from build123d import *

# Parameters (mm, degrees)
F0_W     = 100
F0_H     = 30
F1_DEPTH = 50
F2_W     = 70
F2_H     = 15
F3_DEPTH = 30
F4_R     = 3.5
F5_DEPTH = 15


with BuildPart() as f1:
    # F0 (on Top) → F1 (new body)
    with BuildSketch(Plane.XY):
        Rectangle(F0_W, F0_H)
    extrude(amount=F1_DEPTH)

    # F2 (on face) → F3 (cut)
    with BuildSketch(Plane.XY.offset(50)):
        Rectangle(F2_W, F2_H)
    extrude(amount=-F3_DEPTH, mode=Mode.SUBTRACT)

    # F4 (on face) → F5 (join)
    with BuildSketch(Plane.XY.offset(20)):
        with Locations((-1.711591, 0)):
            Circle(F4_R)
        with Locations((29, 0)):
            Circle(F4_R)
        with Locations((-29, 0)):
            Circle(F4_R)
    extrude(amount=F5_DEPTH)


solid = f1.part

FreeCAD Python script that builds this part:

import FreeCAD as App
import Part
import Sketcher

V = App.Vector
Q = App.Units.Quantity


def add_polygon(sketch, points):
    """Adds a closed chain of lines whose ends are joined by coincident constraints."""
    first, n = sketch.GeometryCount, len(points)
    for a, b in zip(points, points[1:] + points[:1]):
        sketch.addGeometry(Part.LineSegment(App.Vector(*a, 0), App.Vector(*b, 0)), False)
    for i in range(n):
        sketch.addConstraint(Sketcher.Constraint("Coincident", first + i, 2, first + (i + 1) % n, 1))

doc = App.newDocument("Part")
body = doc.addObject("PartDesign::Body", "Body")

sketch1 = body.newObject("Sketcher::SketchObject", "Sketch")
sketch1.AttachmentSupport = (doc.getObject("XY_Plane"), [""])
sketch1.MapMode = "FlatFace"
add_polygon(sketch1, [(-50, 15), (-50, -15), (50, -15), (50, 15)])
sketch1.addConstraint([
    Sketcher.Constraint("Vertical", 0),
    Sketcher.Constraint("Horizontal", 1),
    Sketcher.Constraint("Vertical", 2),
    Sketcher.Constraint("Horizontal", 3),
    Sketcher.Constraint("Symmetric", 0, 2, 2, 2, -1, 1),
    Sketcher.Constraint("DistanceX", 1, 1, 1, 2, Q("100 mm")),
    Sketcher.Constraint("DistanceY", 0, 2, 0, 1, Q("30 mm")),
])
pad1 = body.newObject("PartDesign::Pad", "Pad")
pad1.Profile = sketch1
pad1.Length = 50

sketch2 = body.newObject("Sketcher::SketchObject", "Sketch001")
sketch2.AttachmentSupport = (doc.getObject("XY_Plane"), [""])
sketch2.MapMode = "FlatFace"
sketch2.AttachmentOffset = App.Placement(V(0, 0, 50), App.Rotation())
add_polygon(sketch2, [(-35, 8), (-35, -8), (35, -8), (35, 8)])
sketch2.addConstraint([
    Sketcher.Constraint("Vertical", 0),
    Sketcher.Constraint("Horizontal", 1),
    Sketcher.Constraint("Vertical", 2),
    Sketcher.Constraint("Horizontal", 3),
    Sketcher.Constraint("Symmetric", 0, 2, 2, 2, -1, 1),
    Sketcher.Constraint("DistanceX", 1, 1, 1, 2, Q("70 mm")),
    Sketcher.Constraint("DistanceY", 0, 2, 0, 1, Q("15 mm")),
])
pocket1 = body.newObject("PartDesign::Pocket", "Pocket")
pocket1.Profile = sketch2
pocket1.Length = 30

sketch3 = body.newObject("Sketcher::SketchObject", "Sketch002")
sketch3.AttachmentSupport = (doc.getObject("XY_Plane"), [""])
sketch3.MapMode = "FlatFace"
sketch3.AttachmentOffset = App.Placement(V(0, 0, 20), App.Rotation())
sketch3.addGeometry([
    Part.Circle(V(-1.7, 0, 0), V(0, 0, 1), 3.5),
    Part.Circle(V(29, 0, 0), V(0, 0, 1), 3.5),
    Part.Circle(V(-29, 0, 0), V(0, 0, 1), 3.5),
], False)
sketch3.addConstraint([
    Sketcher.Constraint("Equal", 0, 1),
    Sketcher.Constraint("Equal", 1, 2),
    Sketcher.Constraint("Symmetric", 1, 3, 2, 3, -1, 1),
    Sketcher.Constraint("PointOnObject", 0, 3, -1),
    Sketcher.Constraint("PointOnObject", 1, 3, -1),
    Sketcher.Constraint("Diameter", 0, Q("7 mm")),
    Sketcher.Constraint("DistanceX", -1, 1, 1, 3, Q("29 mm")),
    Sketcher.Constraint("DistanceX", 0, 3, -1, 1, Q("1.711591 mm")),
])
pad2 = body.newObject("PartDesign::Pad", "Pad001")
pad2.Profile = sketch3
pad2.Length = 15

doc.recompute()
